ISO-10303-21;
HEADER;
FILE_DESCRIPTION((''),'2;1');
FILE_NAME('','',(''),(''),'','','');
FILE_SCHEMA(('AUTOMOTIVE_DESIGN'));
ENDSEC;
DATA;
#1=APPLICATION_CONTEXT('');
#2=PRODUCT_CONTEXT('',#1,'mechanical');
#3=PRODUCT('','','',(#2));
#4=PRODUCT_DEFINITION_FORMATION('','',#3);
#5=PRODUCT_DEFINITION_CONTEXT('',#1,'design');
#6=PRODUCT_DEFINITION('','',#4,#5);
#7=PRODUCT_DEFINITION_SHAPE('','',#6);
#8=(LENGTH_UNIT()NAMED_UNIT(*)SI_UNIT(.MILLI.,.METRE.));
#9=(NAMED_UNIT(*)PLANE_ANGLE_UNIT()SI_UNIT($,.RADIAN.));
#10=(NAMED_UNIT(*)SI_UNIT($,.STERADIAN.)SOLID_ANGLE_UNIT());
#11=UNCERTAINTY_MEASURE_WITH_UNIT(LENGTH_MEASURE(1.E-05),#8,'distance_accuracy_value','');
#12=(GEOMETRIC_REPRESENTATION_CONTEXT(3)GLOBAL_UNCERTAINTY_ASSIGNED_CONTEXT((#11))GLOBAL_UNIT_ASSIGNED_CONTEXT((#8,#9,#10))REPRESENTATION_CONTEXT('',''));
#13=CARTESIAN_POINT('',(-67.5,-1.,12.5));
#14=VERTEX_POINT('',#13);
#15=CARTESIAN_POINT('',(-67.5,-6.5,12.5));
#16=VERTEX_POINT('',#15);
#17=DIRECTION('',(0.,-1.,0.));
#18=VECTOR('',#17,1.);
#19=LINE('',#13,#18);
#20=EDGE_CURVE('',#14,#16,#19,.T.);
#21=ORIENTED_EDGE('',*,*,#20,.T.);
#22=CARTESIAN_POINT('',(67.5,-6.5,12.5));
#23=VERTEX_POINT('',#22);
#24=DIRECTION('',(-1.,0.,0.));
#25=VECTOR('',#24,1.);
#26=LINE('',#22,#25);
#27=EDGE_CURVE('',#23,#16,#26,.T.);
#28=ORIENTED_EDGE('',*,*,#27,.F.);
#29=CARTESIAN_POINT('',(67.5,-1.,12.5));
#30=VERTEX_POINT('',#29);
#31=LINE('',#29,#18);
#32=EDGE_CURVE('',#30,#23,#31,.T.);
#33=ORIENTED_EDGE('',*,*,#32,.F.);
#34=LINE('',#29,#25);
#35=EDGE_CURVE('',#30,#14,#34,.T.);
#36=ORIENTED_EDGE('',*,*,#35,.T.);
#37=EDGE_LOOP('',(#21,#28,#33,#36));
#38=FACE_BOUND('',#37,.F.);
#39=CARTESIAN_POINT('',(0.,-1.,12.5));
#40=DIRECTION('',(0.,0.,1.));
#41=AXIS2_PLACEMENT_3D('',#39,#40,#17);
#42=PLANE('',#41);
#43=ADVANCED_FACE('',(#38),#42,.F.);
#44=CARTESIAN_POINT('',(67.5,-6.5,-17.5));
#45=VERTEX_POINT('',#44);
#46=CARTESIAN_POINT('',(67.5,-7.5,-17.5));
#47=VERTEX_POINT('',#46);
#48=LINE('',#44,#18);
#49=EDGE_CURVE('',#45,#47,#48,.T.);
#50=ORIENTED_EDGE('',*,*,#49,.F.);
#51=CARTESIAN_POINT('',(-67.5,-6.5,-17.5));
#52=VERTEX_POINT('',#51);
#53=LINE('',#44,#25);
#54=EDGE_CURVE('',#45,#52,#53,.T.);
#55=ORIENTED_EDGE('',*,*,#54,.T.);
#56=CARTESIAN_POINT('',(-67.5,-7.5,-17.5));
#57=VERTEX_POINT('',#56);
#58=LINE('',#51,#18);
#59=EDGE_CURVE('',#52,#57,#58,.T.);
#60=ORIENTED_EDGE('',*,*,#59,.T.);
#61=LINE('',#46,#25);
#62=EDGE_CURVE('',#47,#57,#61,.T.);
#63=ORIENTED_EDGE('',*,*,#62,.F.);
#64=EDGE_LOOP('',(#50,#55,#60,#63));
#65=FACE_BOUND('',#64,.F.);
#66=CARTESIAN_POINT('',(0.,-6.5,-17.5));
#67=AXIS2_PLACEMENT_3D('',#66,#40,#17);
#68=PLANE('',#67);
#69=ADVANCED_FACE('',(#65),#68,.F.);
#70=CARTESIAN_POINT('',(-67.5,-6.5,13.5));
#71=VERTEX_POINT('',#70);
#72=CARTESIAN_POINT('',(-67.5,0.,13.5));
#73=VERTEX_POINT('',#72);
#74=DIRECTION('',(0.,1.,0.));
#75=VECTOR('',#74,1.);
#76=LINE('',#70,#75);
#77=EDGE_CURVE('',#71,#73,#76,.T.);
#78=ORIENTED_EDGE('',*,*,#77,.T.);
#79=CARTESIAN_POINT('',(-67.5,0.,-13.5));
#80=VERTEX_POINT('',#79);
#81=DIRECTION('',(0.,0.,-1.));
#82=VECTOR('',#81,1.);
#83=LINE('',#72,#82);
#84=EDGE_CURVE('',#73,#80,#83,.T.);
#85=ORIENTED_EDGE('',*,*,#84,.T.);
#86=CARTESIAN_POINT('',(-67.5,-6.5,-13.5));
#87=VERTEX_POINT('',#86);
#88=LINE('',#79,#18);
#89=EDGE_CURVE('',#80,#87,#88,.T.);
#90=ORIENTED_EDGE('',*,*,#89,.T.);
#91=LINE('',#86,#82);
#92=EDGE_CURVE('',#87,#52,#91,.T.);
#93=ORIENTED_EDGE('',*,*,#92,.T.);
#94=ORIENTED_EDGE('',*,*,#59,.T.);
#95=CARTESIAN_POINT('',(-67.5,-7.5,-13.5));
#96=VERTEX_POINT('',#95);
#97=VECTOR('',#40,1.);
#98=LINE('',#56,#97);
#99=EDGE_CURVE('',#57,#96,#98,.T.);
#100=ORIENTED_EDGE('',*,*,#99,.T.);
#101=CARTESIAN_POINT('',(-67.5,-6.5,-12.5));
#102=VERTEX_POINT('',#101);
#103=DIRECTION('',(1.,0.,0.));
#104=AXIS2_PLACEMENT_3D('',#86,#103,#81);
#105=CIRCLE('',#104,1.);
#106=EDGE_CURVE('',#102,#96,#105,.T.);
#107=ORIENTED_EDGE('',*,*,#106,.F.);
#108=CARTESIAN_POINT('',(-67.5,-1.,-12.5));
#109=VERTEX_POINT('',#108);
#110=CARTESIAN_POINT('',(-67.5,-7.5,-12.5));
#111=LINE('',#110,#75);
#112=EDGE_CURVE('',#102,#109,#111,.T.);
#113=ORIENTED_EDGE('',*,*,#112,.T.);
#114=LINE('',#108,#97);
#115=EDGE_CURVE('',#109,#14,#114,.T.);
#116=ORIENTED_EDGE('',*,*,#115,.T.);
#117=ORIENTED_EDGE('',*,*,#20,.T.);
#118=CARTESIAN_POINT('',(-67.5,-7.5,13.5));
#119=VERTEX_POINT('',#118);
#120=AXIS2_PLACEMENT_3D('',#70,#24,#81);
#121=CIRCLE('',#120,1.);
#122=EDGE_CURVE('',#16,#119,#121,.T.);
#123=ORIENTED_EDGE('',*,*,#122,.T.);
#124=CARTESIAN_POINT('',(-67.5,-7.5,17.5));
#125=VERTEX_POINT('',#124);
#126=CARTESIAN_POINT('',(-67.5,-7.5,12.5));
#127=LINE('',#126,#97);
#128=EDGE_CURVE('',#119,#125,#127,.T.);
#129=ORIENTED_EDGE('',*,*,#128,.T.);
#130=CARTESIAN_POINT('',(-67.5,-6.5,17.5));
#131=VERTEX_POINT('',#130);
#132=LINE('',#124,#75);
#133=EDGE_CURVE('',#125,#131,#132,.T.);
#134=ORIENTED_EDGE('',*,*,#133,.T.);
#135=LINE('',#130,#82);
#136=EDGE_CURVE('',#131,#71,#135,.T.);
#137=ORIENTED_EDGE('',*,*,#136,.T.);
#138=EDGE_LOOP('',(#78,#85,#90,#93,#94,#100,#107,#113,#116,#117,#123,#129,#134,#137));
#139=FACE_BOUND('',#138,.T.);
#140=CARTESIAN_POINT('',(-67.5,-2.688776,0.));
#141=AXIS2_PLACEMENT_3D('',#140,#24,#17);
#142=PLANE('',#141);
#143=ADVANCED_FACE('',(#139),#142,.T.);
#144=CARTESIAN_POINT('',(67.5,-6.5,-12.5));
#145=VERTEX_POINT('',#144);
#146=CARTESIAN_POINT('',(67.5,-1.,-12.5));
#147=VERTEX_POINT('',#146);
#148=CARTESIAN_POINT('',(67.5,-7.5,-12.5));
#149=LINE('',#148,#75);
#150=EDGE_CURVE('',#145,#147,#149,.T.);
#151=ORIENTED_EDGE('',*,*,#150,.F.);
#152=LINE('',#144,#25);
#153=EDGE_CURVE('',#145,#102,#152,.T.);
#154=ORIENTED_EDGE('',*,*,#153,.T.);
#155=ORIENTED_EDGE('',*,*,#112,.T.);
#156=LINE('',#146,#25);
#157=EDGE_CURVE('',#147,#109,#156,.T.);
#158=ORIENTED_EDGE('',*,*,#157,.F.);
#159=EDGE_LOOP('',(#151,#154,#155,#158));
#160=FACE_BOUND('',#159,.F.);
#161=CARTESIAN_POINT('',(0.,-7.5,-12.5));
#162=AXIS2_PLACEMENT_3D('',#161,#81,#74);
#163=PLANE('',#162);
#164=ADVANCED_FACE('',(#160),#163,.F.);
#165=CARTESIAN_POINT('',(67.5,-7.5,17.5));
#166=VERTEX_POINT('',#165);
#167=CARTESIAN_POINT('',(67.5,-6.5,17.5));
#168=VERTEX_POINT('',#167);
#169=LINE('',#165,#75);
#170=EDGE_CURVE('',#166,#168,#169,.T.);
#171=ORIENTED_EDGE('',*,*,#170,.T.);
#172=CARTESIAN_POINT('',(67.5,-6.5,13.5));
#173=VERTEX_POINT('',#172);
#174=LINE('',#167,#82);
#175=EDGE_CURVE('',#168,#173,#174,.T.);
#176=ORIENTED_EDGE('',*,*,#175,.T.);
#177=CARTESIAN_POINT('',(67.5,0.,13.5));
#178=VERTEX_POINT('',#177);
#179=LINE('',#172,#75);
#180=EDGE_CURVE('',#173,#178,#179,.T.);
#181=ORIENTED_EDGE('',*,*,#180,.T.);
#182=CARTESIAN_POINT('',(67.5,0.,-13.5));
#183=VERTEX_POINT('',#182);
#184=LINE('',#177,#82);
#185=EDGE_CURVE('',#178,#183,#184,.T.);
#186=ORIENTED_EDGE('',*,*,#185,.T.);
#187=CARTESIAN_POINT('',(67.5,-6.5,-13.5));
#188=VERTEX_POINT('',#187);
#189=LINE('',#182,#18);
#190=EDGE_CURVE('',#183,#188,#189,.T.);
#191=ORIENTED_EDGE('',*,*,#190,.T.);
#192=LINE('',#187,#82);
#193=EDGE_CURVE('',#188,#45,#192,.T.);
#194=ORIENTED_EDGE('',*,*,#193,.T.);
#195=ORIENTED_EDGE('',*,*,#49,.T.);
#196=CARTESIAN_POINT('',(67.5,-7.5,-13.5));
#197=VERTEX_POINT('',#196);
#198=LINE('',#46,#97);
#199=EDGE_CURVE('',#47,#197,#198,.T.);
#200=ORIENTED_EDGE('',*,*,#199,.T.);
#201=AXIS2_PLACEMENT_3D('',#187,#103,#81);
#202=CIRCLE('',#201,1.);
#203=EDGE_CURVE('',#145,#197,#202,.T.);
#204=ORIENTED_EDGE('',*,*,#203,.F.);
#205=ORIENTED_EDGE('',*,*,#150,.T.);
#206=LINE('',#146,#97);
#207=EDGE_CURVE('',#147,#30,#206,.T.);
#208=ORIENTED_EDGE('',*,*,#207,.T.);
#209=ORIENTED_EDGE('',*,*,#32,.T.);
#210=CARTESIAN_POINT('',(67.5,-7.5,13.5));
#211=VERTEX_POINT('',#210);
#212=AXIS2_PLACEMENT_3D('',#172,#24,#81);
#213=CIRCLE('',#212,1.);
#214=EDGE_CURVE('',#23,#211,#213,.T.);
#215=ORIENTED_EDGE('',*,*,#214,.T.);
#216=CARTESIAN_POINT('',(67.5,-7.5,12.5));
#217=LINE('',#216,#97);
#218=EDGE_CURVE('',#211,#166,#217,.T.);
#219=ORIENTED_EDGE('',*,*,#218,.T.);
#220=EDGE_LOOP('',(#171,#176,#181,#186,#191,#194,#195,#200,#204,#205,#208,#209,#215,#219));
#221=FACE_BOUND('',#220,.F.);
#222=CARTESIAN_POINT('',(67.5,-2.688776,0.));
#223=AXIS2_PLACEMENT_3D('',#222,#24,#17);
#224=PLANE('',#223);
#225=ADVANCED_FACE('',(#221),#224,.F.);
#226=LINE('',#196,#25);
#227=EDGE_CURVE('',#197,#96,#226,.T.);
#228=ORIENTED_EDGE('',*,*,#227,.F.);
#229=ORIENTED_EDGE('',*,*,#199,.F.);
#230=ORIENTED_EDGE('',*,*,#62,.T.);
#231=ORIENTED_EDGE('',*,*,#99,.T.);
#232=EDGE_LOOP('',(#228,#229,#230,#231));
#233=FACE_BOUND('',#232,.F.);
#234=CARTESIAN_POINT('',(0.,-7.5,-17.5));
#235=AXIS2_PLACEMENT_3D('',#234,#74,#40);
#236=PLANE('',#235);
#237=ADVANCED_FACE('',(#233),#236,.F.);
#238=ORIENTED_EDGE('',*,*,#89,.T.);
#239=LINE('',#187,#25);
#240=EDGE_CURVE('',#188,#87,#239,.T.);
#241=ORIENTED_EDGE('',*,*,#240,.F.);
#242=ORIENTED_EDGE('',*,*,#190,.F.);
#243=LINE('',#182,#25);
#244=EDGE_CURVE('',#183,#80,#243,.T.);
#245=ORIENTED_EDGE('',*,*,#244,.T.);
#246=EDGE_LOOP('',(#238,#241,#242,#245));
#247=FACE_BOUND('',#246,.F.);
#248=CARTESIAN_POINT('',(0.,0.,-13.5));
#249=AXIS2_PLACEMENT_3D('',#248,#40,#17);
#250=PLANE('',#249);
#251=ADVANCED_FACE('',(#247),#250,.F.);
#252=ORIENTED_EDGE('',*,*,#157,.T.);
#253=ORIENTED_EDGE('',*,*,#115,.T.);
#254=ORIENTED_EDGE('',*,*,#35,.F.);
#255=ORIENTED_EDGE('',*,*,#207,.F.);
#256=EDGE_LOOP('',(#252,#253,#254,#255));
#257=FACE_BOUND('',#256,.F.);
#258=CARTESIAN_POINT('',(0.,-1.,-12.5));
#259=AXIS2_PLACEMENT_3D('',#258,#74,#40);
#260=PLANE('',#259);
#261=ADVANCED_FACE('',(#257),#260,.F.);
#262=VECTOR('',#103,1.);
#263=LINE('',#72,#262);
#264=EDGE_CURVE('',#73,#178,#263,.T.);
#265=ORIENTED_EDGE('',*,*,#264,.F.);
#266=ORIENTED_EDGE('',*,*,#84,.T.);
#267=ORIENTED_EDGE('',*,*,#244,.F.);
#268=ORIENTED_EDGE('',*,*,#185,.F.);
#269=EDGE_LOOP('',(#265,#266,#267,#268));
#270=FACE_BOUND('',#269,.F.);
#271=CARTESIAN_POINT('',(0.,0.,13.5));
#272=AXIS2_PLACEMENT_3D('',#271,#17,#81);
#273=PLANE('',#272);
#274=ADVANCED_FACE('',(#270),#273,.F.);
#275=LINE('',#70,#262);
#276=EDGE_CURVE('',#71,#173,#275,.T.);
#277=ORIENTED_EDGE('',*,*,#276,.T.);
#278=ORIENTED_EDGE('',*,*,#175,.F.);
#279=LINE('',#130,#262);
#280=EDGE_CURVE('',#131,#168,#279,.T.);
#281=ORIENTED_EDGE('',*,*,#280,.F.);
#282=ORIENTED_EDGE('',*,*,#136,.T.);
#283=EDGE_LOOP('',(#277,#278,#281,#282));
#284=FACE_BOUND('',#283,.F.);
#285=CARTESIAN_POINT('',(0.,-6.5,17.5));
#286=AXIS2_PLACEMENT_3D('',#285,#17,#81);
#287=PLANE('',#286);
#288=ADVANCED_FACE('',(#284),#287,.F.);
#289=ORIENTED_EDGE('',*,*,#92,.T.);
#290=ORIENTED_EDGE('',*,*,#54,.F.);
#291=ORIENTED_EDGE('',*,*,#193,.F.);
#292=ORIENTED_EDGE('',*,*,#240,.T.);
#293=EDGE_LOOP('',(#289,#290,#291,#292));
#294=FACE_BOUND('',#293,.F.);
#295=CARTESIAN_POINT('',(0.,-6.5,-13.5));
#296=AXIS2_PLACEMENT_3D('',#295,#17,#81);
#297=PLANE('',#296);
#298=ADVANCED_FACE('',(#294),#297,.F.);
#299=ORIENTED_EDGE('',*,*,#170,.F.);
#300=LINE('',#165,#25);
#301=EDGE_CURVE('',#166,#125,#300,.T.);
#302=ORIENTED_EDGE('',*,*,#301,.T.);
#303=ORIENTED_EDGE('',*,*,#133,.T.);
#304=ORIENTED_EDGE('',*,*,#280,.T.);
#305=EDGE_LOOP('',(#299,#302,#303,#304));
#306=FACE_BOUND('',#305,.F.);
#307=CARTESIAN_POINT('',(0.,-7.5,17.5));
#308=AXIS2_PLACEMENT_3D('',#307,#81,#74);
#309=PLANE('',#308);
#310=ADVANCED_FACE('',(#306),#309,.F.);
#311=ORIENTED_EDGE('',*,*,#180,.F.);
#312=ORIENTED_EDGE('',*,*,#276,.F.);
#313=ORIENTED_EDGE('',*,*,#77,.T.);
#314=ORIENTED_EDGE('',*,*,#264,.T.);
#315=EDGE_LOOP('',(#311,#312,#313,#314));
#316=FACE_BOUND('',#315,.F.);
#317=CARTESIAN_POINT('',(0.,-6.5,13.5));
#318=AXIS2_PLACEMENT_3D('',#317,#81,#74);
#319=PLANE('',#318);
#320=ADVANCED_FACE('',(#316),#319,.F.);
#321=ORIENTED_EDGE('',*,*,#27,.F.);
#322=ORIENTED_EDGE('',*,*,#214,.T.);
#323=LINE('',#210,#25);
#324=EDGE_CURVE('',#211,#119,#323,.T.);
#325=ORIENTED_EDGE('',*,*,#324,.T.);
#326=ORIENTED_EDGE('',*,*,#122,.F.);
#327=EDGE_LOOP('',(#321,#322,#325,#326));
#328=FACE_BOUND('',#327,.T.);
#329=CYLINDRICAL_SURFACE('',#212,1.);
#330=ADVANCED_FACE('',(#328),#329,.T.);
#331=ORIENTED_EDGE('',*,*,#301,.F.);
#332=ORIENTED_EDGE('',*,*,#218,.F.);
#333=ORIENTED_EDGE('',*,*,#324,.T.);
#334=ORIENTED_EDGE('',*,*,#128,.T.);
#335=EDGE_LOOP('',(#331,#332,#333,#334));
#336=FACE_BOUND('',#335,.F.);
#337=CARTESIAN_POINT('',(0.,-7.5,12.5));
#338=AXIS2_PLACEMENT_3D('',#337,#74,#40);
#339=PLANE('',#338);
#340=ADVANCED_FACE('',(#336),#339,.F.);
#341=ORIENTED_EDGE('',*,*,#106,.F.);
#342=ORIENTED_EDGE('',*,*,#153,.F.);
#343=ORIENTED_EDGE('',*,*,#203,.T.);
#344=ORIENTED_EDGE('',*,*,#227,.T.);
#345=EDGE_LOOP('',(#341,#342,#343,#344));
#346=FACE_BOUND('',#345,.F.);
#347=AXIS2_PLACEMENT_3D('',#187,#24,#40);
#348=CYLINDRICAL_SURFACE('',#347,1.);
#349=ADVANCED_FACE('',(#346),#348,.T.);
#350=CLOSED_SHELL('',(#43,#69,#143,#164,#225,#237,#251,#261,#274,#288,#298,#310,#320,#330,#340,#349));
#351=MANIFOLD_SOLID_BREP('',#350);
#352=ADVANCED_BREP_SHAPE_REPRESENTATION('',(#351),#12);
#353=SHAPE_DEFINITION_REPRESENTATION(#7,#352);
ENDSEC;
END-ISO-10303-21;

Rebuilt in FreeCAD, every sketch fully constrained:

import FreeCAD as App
import Part
import Sketcher
from FreeCAD import Vector


def edges_at(feature, points):
    """Names of the edges that pass closest to the given points."""
    edges = feature.Shape.Edges
    near = lambda p: min(range(len(edges)), key=lambda i: edges[i].distToShape(Part.Vertex(*p))[0])
    return sorted({f"Edge{near(p) + 1}" for p in points})

doc = App.newDocument("Part")
body = doc.addObject("PartDesign::Body", "Body")

sketch1 = body.newObject("Sketcher::SketchObject", "Sketch")
sketch1.AttachmentSupport = (doc.getObject("YZ_Plane"), [""])
sketch1.MapMode = "FlatFace"
sketch1.addGeometry([
    Part.LineSegment(Vector(0, -13.5, 0), Vector(0, 13.5, 0)),
    Part.LineSegment(Vector(0, 13.5, 0), Vector(-6.5, 13.5, 0)),
    Part.LineSegment(Vector(-6.5, 13.5, 0), Vector(-6.5, 17.5, 0)),
    Part.LineSegment(Vector(-6.5, 17.5, 0), Vector(-7.5, 17.5, 0)),
    Part.LineSegment(Vector(-7.5, 17.5, 0), Vector(-7.5, 12.5, 0)),
    Part.LineSegment(Vector(-7.5, 12.5, 0), Vector(-1, 12.5, 0)),
    Part.LineSegment(Vector(-1, 12.5, 0), Vector(-1, -12.5, 0)),
    Part.LineSegment(Vector(-1, -12.5, 0), Vector(-7.5, -12.5, 0)),
    Part.LineSegment(Vector(-7.5, -12.5, 0), Vector(-7.5, -17.5, 0)),
    Part.LineSegment(Vector(-7.5, -17.5, 0), Vector(-6.5, -17.5, 0)),
    Part.LineSegment(Vector(-6.5, -17.5, 0), Vector(-6.5, -13.5, 0)),
    Part.LineSegment(Vector(-6.5, -13.5, 0), Vector(0, -13.5, 0)),
], False)
sketch1.addConstraint([
    Sketcher.Constraint("Coincident", 0, 2, 1, 1),
    Sketcher.Constraint("Coincident", 1, 2, 2, 1),
    Sketcher.Constraint("Coincident", 2, 2, 3, 1),
    Sketcher.Constraint("Coincident", 3, 2, 4, 1),
    Sketcher.Constraint("Coincident", 4, 2, 5, 1),
    Sketcher.Constraint("Coincident", 5, 2, 6, 1),
    Sketcher.Constraint("Coincident", 6, 2, 7, 1),
    Sketcher.Constraint("Coincident", 7, 2, 8, 1),
    Sketcher.Constraint("Coincident", 8, 2, 9, 1),
    Sketcher.Constraint("Coincident", 9, 2, 10, 1),
    Sketcher.Constraint("Coincident", 10, 2, 11, 1),
    Sketcher.Constraint("Coincident", 11, 2, 0, 1),
    Sketcher.Constraint("Vertical", 0),
    Sketcher.Constraint("Horizontal", 1),
    Sketcher.Constraint("Vertical", 2),
    Sketcher.Constraint("Horizontal", 3),
    Sketcher.Constraint("Vertical", 4),
    Sketcher.Constraint("Horizontal", 5),
    Sketcher.Constraint("Vertical", 6),
    Sketcher.Constraint("Horizontal", 7),
    Sketcher.Constraint("Vertical", 8),
    Sketcher.Constraint("Horizontal", 9),
    Sketcher.Constraint("Vertical", 10),
    Sketcher.Constraint("Horizontal", 11),
    Sketcher.Constraint("Symmetric", 0, 2, 11, 2, -1, 1),
    Sketcher.Constraint("Symmetric", 4, 2, 7, 2, -1),
    Sketcher.Constraint("Symmetric", 2, 2, 9, 2, -1),
    Sketcher.Constraint("Equal", 1, 5),
    Sketcher.Constraint("DistanceX", 3, 2, 3, 1, 1.0),
    Sketcher.Constraint("DistanceY", 0, 1, 0, 2, 27.0),
    Sketcher.Constraint("DistanceY", 2, 1, 2, 2, 4.0),
    Sketcher.Constraint("DistanceY", 4, 2, 4, 1, 5.0),
    Sketcher.Constraint("DistanceX", 1, 2, 1, 1, 6.5),
])
pad1 = body.newObject("PartDesign::Pad", "Pad")
pad1.Profile = sketch1
pad1.Length = 135
pad1.Midplane = True
doc.recompute()

fillet = body.newObject("PartDesign::Fillet", "Fillet")
fillet.Base = (pad1, edges_at(pad1, [(0, -7.5, -12.5)]))
fillet.Radius = 1
doc.recompute()

fillet2 = body.newObject("PartDesign::Fillet", "Fillet001")
fillet2.Base = (fillet, edges_at(fillet, [(0, -7.5, 12.5)]))
fillet2.Radius = 1

doc.recompute()
